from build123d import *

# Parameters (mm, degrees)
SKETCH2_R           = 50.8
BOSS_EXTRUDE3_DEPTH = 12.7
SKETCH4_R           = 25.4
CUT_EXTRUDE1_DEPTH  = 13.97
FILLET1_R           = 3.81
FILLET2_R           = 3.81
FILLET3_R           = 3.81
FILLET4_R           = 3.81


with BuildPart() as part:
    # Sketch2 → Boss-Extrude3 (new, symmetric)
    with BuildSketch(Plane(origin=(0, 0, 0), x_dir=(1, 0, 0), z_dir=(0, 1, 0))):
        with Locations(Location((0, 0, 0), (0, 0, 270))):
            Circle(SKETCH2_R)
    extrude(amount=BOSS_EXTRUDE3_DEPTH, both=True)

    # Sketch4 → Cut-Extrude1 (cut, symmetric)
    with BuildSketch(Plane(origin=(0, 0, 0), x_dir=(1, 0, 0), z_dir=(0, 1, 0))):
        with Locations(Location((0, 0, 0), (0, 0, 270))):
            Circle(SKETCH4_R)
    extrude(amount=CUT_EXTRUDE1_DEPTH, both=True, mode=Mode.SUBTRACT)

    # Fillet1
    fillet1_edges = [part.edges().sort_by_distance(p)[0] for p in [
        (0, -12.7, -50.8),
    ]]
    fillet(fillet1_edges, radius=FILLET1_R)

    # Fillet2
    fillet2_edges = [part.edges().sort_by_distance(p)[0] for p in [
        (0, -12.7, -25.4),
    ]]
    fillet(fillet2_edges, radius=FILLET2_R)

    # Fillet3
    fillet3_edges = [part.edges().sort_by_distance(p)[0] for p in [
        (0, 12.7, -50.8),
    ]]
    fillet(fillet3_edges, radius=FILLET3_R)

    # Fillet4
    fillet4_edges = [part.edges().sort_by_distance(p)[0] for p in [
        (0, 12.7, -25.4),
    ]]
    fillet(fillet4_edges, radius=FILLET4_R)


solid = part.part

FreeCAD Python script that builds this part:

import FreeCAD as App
import Part
import Sketcher
from FreeCAD import Vector
Q = App.Units.Quantity


def edges_at(feature, points):
    """Names of the edges that pass closest to the given points."""
    edges = feature.Shape.Edges
    near = lambda p: min(range(len(edges)), key=lambda i: edges[i].distToShape(Part.Vertex(*p))[0])
    return sorted({f"Edge{near(p) + 1}" for p in points})

doc = App.newDocument("Part")
body = doc.addObject("PartDesign::Body", "Body")

sketch1 = body.newObject("Sketcher::SketchObject", "Sketch")
sketch1.AttachmentSupport = (doc.getObject("XZ_Plane"), [""])
sketch1.MapMode = "FlatFace"
sketch1.addGeometry(Part.Circle(Vector(0, 0, 0), Vector(0, 0, 1), 51), False)
sketch1.addConstraint([
    Sketcher.Constraint("Coincident", 0, 3, -1, 1),
    Sketcher.Constraint("Diameter", 0, Q("4 in")),
])
pad1 = body.newObject("PartDesign::Pad", "Pad")
pad1.Profile = sketch1
pad1.Length = Q("1 in")
pad1.Midplane = True

sketch2 = body.newObject("Sketcher::SketchObject", "Sketch001")
sketch2.AttachmentSupport = (doc.getObject("XZ_Plane"), [""])
sketch2.MapMode = "FlatFace"
sketch2.addGeometry(Part.Circle(Vector(0, 0, 0), Vector(0, 0, 1), 25), False)
sketch2.addConstraint([
    Sketcher.Constraint("Coincident", 0, 3, -1, 1),
    Sketcher.Constraint("Diameter", 0, Q("2 in")),
])
pocket1 = body.newObject("PartDesign::Pocket", "Pocket")
pocket1.Profile = sketch2
pocket1.Length = Q("1.1 in")
pocket1.Midplane = True
doc.recompute()

fillet = body.newObject("PartDesign::Fillet", "Fillet")
fillet.Base = (pocket1, edges_at(pocket1, [(0, -12.7, -50.8)]))
fillet.Radius = Q("0.15 in")
doc.recompute()

fillet2 = body.newObject("PartDesign::Fillet", "Fillet001")
fillet2.Base = (fillet, edges_at(fillet, [(0, -12.7, -25.4)]))
fillet2.Radius = Q("0.15 in")
doc.recompute()

fillet3 = body.newObject("PartDesign::Fillet", "Fillet002")
fillet3.Base = (fillet2, edges_at(fillet2, [(0, 12.7, -50.8)]))
fillet3.Radius = Q("0.15 in")
doc.recompute()

fillet4 = body.newObject("PartDesign::Fillet", "Fillet003")
fillet4.Base = (fillet3, edges_at(fillet3, [(0, 12.7, -25.4)]))
fillet4.Radius = Q("0.15 in")

doc.recompute()
